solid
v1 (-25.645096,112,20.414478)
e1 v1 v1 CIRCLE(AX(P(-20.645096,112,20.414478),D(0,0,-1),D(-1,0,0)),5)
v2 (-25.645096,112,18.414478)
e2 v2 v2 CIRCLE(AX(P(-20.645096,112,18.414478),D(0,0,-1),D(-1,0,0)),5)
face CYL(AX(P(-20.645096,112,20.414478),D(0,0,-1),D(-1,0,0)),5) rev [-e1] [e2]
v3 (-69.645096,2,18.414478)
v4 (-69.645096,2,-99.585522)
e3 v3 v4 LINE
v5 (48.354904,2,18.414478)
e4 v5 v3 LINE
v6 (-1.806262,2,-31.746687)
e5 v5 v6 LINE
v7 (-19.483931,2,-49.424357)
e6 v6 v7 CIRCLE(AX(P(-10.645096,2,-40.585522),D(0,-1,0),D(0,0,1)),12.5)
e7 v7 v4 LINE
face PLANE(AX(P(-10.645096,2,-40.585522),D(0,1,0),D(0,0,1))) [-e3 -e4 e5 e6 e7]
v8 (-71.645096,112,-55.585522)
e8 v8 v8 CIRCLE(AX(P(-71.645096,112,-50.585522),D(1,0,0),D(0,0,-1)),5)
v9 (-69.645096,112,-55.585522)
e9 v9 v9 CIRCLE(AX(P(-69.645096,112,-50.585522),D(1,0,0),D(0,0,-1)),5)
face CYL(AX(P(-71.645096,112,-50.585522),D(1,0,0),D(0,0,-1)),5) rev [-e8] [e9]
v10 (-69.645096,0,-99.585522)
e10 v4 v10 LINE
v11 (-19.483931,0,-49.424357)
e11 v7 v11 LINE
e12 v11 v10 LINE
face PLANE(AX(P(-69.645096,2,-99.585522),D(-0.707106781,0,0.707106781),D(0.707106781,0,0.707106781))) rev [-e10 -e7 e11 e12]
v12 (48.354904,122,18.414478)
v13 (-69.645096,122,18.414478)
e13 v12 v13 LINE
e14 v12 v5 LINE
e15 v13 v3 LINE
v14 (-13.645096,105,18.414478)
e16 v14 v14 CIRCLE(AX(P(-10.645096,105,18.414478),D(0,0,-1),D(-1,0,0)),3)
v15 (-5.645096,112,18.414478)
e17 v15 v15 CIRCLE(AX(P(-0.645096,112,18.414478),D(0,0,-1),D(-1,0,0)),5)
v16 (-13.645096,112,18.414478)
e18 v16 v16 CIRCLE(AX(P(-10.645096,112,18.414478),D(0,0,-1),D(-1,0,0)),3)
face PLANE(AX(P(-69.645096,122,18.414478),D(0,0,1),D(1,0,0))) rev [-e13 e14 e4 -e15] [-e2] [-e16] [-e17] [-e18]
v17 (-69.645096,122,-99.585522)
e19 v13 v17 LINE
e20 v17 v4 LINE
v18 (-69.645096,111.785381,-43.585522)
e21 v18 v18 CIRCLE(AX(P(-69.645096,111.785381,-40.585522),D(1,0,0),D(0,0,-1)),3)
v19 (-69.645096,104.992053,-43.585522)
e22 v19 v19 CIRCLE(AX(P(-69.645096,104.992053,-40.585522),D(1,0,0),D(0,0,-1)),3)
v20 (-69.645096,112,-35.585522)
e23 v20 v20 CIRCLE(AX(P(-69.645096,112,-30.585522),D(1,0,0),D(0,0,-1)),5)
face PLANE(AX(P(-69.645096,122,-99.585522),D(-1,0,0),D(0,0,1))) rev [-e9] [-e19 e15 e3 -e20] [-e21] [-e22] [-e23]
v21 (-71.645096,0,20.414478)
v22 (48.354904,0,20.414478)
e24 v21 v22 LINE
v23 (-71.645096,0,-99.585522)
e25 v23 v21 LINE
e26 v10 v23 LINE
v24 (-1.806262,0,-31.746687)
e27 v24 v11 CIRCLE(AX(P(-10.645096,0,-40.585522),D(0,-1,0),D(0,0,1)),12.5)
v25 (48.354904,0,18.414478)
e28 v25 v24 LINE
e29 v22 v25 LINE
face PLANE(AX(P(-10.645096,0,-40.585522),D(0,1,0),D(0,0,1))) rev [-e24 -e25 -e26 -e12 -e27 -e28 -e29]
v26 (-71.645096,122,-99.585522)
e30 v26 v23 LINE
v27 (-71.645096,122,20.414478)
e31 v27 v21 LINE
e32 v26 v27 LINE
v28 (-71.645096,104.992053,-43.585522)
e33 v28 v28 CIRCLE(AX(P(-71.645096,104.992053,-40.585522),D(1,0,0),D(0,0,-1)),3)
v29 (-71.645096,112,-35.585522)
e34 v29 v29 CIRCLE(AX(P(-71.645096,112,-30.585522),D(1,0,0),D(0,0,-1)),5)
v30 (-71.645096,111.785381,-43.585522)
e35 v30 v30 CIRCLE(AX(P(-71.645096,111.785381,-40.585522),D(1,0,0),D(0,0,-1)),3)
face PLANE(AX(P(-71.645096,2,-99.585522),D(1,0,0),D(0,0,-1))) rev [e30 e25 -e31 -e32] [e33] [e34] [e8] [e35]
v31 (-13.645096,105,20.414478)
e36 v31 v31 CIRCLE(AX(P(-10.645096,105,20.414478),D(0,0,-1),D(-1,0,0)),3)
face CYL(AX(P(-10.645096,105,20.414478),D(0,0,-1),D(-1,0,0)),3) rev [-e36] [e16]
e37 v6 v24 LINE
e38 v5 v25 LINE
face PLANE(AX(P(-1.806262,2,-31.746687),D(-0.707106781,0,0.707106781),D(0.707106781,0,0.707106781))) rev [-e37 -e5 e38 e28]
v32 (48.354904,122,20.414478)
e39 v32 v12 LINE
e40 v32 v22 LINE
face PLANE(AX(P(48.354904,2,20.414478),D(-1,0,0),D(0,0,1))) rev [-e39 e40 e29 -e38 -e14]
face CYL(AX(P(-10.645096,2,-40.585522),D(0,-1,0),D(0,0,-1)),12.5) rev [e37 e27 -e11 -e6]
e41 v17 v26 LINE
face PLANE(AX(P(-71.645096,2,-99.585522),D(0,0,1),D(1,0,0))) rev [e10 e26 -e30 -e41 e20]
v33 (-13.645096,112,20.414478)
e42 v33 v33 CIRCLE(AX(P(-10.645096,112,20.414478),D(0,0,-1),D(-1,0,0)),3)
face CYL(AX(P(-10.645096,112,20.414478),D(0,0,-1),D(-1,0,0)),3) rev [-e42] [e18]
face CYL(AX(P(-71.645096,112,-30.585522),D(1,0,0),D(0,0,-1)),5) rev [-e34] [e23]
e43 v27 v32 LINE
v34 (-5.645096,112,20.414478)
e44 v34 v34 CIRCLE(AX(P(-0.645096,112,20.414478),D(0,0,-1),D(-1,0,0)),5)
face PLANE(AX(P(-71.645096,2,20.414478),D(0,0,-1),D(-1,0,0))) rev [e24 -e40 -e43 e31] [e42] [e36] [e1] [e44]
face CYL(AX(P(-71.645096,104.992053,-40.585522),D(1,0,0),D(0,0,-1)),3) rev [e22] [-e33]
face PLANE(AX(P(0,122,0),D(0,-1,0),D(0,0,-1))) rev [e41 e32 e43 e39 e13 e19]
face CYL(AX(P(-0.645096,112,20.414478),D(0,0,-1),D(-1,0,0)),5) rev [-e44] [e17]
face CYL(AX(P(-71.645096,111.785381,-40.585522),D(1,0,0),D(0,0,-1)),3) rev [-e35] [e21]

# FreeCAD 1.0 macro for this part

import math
import FreeCAD as App
import Part
import Sketcher

V = App.Vector
Q = App.Units.Quantity

doc = App.newDocument("Part")
body = doc.addObject("PartDesign::Body", "Body")

# Sketch on XZ plane
sketch1 = body.newObject("Sketcher::SketchObject", "Sketch")
sketch1.AttachmentSupport = (doc.getObject("XZ_Plane"), [""])
sketch1.MapMode = "FlatFace"
sketch1.addGeometry(Part.LineSegment(V(-71.6, -99.6, 0), V(-71.6, 20.4, 0)), False)
sketch1.addGeometry(Part.LineSegment(V(-71.6, 20.4, 0), V(48.4, 20.4, 0)), False)
sketch1.addGeometry(Part.LineSegment(V(48.4, 20.4, 0), V(48.4, 18.4, 0)), False)
sketch1.addGeometry(Part.LineSegment(V(48.4, 18.4, 0), V(-1.8, -31.7, 0)), False)
sketch1.addGeometry(Part.ArcOfCircle(Part.Circle(V(-10.6, -40.6, 0), V(0, 0, 1), 12.5), math.radians(45), math.radians(225)), False)
sketch1.addGeometry(Part.LineSegment(V(-19.5, -49.4, 0), V(-69.6, -99.6, 0)), False)
sketch1.addGeometry(Part.LineSegment(V(-69.6, -99.6, 0), V(-71.6, -99.6, 0)), False)
sketch1.addConstraint(Sketcher.Constraint("Coincident", 0, 2, 1, 1))
sketch1.addConstraint(Sketcher.Constraint("Coincident", 1, 2, 2, 1))
sketch1.addConstraint(Sketcher.Constraint("Coincident", 2, 2, 3, 1))
sketch1.addConstraint(Sketcher.Constraint("Coincident", 3, 2, 4, 1))
sketch1.addConstraint(Sketcher.Constraint("Coincident", 4, 2, 5, 1))
sketch1.addConstraint(Sketcher.Constraint("Coincident", 5, 2, 6, 1))
sketch1.addConstraint(Sketcher.Constraint("Coincident", 6, 2, 0, 1))
sketch1.addConstraint(Sketcher.Constraint("Vertical", 0))
sketch1.addConstraint(Sketcher.Constraint("Horizontal", 1))
sketch1.addConstraint(Sketcher.Constraint("Vertical", 2))
sketch1.addConstraint(Sketcher.Constraint("Horizontal", 6))
sketch1.addConstraint(Sketcher.Constraint("Parallel", 3, 5))
sketch1.addConstraint(Sketcher.Constraint("Equal", 1, 0))
sketch1.addConstraint(Sketcher.Constraint("Equal", 6, 2))
sketch1.addConstraint(Sketcher.Constraint("Equal", 3, 5))
sketch1.addConstraint(Sketcher.Constraint("Radius", 4, Q("12.5 mm")))
sketch1.addConstraint(Sketcher.Constraint("DistanceX", 1, 1, 1, 2, Q("120 mm")))
sketch1.addConstraint(Sketcher.Constraint("DistanceX", 6, 2, 6, 1, Q("2 mm")))
sketch1.addConstraint(Sketcher.Constraint("Angle", 3, Q("-135 deg")))
sketch1.addConstraint(Sketcher.Constraint("DistanceX", 0, 2, 4, 3, Q("61 mm")))
sketch1.addConstraint(Sketcher.Constraint("DistanceX", 3, 2, -1, 1, Q("1.806262 mm")))
sketch1.addConstraint(Sketcher.Constraint("DistanceY", 4, 3, -1, 1, Q("40.585522 mm")))
pad1 = body.newObject("PartDesign::Pad", "Pad")
pad1.Profile = sketch1
pad1.Length = 2
pad1.Reversed = True

# Sketch on XZ plane
sketch2 = body.newObject("Sketcher::SketchObject", "Sketch001")
sketch2.AttachmentSupport = (doc.getObject("XZ_Plane"), [""])
sketch2.MapMode = "FlatFace"
sketch2.AttachmentOffset = App.Placement(V(0, 0, -2), App.Rotation())
sketch2.addGeometry(Part.LineSegment(V(-69.6, 18.4, 0), V(-69.6, -99.6, 0)), False)
sketch2.addGeometry(Part.LineSegment(V(-69.6, -99.6, 0), V(-71.6, -99.6, 0)), False)
sketch2.addGeometry(Part.LineSegment(V(-71.6, -99.6, 0), V(-71.6, 20.4, 0)), False)
sketch2.addGeometry(Part.LineSegment(V(-71.6, 20.4, 0), V(48.4, 20.4, 0)), False)
sketch2.addGeometry(Part.LineSegment(V(48.4, 20.4, 0), V(48.4, 18.4, 0)), False)
sketch2.addGeometry(Part.LineSegment(V(48.4, 18.4, 0), V(-69.6, 18.4, 0)), False)
sketch2.addConstraint(Sketcher.Constraint("Coincident", 0, 2, 1, 1))
sketch2.addConstraint(Sketcher.Constraint("Coincident", 1, 2, 2, 1))
sketch2.addConstraint(Sketcher.Constraint("Coincident", 2, 2, 3, 1))
sketch2.addConstraint(Sketcher.Constraint("Coincident", 3, 2, 4, 1))
sketch2.addConstraint(Sketcher.Constraint("Coincident", 4, 2, 5, 1))
sketch2.addConstraint(Sketcher.Constraint("Coincident", 5, 2, 0, 1))
sketch2.addConstraint(Sketcher.Constraint("Vertical", 0))
sketch2.addConstraint(Sketcher.Constraint("Horizontal", 1))
sketch2.addConstraint(Sketcher.Constraint("Vertical", 2))
sketch2.addConstraint(Sketcher.Constraint("Horizontal", 3))
sketch2.addConstraint(Sketcher.Constraint("Vertical", 4))
sketch2.addConstraint(Sketcher.Constraint("Horizontal", 5))
sketch2.addConstraint(Sketcher.Constraint("Equal", 5, 0))
sketch2.addConstraint(Sketcher.Constraint("Equal", 3, 2))
sketch2.addConstraint(Sketcher.Constraint("DistanceX", 1, 2, 1, 1, Q("2 mm")))
sketch2.addConstraint(Sketcher.Constraint("DistanceX", 3, 1, 3, 2, Q("120 mm")))
sketch2.addConstraint(Sketcher.Constraint("DistanceX", 0, 2, -1, 1, Q("69.645096 mm")))
sketch2.addConstraint(Sketcher.Constraint("DistanceY", 0, 2, -1, 1, Q("99.585522 mm")))
pad2 = body.newObject("PartDesign::Pad", "Pad001")
pad2.Profile = sketch2
pad2.Length = 120
pad2.Reversed = True

# Sketch on XY plane
sketch3 = body.newObject("Sketcher::SketchObject", "Sketch002")
sketch3.AttachmentSupport = (doc.getObject("XY_Plane"), [""])
sketch3.MapMode = "FlatFace"
sketch3.AttachmentOffset = App.Placement(V(0, 0, 18.414478), App.Rotation())
sketch3.addGeometry(Part.Circle(V(-0.6, 112, 0), V(0, 0, 1), 5), False)
sketch3.addGeometry(Part.Circle(V(-20.6, 112, 0), V(0, 0, 1), 5), False)
sketch3.addGeometry(Part.Circle(V(-10.6, 112, 0), V(0, 0, 1), 3), False)
sketch3.addConstraint(Sketcher.Constraint("Equal", 0, 1))
sketch3.addConstraint(Sketcher.Constraint("Horizontal", 0, 3, 1, 3))
sketch3.addConstraint(Sketcher.Constraint("Horizontal", 1, 3, 2, 3))
sketch3.addConstraint(Sketcher.Constraint("Diameter", 0, Q("10 mm")))
sketch3.addConstraint(Sketcher.Constraint("Diameter", 2, Q("6 mm")))
sketch3.addConstraint(Sketcher.Constraint("DistanceY", -1, 1, 0, 3, Q("112 mm")))
sketch3.addConstraint(Sketcher.Constraint("DistanceX", 1, 3, 0, 3, Q("20 mm")))
sketch3.addConstraint(Sketcher.Constraint("DistanceX", 2, 3, 0, 3, Q("10 mm")))
sketch3.addConstraint(Sketcher.Constraint("DistanceX", 0, 3, -1, 1, Q("0.645096 mm")))
pocket1 = body.newObject("PartDesign::Pocket", "Pocket")
pocket1.Profile = sketch3
pocket1.Length = 2
pocket1.Reversed = True

# Sketch on YZ plane
sketch4 = body.newObject("Sketcher::SketchObject", "Sketch003")
sketch4.AttachmentSupport = (doc.getObject("YZ_Plane"), [""])
sketch4.MapMode = "FlatFace"
sketch4.AttachmentOffset = App.Placement(V(0, 0, -69.645096), App.Rotation())
sketch4.addGeometry(Part.Circle(V(112, -30.6, 0), V(0, 0, 1), 5), False)
sketch4.addGeometry(Part.Circle(V(112, -50.6, 0), V(0, 0, 1), 5), False)
sketch4.addGeometry(Part.Circle(V(111.8, -40.6, 0), V(0, 0, 1), 3), False)
sketch4.addGeometry(Part.Circle(V(105, -40.6, 0), V(0, 0, 1), 3), False)
sketch4.addConstraint(Sketcher.Constraint("Equal", 0, 1))
sketch4.addConstraint(Sketcher.Constraint("Equal", 2, 3))
sketch4.addConstraint(Sketcher.Constraint("Horizontal", 2, 3, 3, 3))
sketch4.addConstraint(Sketcher.Constraint("Vertical", 0, 3, 1, 3))
sketch4.addConstraint(Sketcher.Constraint("Diameter", 0, Q("10 mm")))
sketch4.addConstraint(Sketcher.Constraint("Diameter", 2, Q("6 mm")))
sketch4.addConstraint(Sketcher.Constraint("DistanceX", -1, 1, 0, 3, Q("112 mm")))
sketch4.addConstraint(Sketcher.Constraint("DistanceY", 1, 3, 0, 3, Q("20 mm")))
sketch4.addConstraint(Sketcher.Constraint("DistanceY", 2, 3, 0, 3, Q("10 mm")))
sketch4.addConstraint(Sketcher.Constraint("DistanceX", -1, 1, 2, 3, Q("111.785381 mm")))
sketch4.addConstraint(Sketcher.Constraint("DistanceX", 3, 3, 2, 3, Q("6.793329 mm")))
sketch4.addConstraint(Sketcher.Constraint("DistanceY", 0, 3, -1, 1, Q("30.585522 mm")))
pocket2 = body.newObject("PartDesign::Pocket", "Pocket001")
pocket2.Profile = sketch4
pocket2.Length = 2

# Sketch on XY plane
sketch5 = body.newObject("Sketcher::SketchObject", "Sketch004")
sketch5.AttachmentSupport = (doc.getObject("XY_Plane"), [""])
sketch5.MapMode = "FlatFace"
sketch5.AttachmentOffset = App.Placement(V(0, 0, 18.414478), App.Rotation())
sketch5.addGeometry(Part.Circle(V(-10.6, 105, 0), V(0, 0, 1), 3), False)
sketch5.addConstraint(Sketcher.Constraint("Diameter", 0, Q("6 mm")))
sketch5.addConstraint(Sketcher.Constraint("DistanceY", -1, 1, 0, 3, Q("105 mm")))
sketch5.addConstraint(Sketcher.Constraint("DistanceX", 0, 3, -1, 1, Q("10.645096 mm")))
pocket3 = body.newObject("PartDesign::Pocket", "Pocket002")
pocket3.Profile = sketch5
pocket3.Length = 2
pocket3.Reversed = True

doc.recompute()
